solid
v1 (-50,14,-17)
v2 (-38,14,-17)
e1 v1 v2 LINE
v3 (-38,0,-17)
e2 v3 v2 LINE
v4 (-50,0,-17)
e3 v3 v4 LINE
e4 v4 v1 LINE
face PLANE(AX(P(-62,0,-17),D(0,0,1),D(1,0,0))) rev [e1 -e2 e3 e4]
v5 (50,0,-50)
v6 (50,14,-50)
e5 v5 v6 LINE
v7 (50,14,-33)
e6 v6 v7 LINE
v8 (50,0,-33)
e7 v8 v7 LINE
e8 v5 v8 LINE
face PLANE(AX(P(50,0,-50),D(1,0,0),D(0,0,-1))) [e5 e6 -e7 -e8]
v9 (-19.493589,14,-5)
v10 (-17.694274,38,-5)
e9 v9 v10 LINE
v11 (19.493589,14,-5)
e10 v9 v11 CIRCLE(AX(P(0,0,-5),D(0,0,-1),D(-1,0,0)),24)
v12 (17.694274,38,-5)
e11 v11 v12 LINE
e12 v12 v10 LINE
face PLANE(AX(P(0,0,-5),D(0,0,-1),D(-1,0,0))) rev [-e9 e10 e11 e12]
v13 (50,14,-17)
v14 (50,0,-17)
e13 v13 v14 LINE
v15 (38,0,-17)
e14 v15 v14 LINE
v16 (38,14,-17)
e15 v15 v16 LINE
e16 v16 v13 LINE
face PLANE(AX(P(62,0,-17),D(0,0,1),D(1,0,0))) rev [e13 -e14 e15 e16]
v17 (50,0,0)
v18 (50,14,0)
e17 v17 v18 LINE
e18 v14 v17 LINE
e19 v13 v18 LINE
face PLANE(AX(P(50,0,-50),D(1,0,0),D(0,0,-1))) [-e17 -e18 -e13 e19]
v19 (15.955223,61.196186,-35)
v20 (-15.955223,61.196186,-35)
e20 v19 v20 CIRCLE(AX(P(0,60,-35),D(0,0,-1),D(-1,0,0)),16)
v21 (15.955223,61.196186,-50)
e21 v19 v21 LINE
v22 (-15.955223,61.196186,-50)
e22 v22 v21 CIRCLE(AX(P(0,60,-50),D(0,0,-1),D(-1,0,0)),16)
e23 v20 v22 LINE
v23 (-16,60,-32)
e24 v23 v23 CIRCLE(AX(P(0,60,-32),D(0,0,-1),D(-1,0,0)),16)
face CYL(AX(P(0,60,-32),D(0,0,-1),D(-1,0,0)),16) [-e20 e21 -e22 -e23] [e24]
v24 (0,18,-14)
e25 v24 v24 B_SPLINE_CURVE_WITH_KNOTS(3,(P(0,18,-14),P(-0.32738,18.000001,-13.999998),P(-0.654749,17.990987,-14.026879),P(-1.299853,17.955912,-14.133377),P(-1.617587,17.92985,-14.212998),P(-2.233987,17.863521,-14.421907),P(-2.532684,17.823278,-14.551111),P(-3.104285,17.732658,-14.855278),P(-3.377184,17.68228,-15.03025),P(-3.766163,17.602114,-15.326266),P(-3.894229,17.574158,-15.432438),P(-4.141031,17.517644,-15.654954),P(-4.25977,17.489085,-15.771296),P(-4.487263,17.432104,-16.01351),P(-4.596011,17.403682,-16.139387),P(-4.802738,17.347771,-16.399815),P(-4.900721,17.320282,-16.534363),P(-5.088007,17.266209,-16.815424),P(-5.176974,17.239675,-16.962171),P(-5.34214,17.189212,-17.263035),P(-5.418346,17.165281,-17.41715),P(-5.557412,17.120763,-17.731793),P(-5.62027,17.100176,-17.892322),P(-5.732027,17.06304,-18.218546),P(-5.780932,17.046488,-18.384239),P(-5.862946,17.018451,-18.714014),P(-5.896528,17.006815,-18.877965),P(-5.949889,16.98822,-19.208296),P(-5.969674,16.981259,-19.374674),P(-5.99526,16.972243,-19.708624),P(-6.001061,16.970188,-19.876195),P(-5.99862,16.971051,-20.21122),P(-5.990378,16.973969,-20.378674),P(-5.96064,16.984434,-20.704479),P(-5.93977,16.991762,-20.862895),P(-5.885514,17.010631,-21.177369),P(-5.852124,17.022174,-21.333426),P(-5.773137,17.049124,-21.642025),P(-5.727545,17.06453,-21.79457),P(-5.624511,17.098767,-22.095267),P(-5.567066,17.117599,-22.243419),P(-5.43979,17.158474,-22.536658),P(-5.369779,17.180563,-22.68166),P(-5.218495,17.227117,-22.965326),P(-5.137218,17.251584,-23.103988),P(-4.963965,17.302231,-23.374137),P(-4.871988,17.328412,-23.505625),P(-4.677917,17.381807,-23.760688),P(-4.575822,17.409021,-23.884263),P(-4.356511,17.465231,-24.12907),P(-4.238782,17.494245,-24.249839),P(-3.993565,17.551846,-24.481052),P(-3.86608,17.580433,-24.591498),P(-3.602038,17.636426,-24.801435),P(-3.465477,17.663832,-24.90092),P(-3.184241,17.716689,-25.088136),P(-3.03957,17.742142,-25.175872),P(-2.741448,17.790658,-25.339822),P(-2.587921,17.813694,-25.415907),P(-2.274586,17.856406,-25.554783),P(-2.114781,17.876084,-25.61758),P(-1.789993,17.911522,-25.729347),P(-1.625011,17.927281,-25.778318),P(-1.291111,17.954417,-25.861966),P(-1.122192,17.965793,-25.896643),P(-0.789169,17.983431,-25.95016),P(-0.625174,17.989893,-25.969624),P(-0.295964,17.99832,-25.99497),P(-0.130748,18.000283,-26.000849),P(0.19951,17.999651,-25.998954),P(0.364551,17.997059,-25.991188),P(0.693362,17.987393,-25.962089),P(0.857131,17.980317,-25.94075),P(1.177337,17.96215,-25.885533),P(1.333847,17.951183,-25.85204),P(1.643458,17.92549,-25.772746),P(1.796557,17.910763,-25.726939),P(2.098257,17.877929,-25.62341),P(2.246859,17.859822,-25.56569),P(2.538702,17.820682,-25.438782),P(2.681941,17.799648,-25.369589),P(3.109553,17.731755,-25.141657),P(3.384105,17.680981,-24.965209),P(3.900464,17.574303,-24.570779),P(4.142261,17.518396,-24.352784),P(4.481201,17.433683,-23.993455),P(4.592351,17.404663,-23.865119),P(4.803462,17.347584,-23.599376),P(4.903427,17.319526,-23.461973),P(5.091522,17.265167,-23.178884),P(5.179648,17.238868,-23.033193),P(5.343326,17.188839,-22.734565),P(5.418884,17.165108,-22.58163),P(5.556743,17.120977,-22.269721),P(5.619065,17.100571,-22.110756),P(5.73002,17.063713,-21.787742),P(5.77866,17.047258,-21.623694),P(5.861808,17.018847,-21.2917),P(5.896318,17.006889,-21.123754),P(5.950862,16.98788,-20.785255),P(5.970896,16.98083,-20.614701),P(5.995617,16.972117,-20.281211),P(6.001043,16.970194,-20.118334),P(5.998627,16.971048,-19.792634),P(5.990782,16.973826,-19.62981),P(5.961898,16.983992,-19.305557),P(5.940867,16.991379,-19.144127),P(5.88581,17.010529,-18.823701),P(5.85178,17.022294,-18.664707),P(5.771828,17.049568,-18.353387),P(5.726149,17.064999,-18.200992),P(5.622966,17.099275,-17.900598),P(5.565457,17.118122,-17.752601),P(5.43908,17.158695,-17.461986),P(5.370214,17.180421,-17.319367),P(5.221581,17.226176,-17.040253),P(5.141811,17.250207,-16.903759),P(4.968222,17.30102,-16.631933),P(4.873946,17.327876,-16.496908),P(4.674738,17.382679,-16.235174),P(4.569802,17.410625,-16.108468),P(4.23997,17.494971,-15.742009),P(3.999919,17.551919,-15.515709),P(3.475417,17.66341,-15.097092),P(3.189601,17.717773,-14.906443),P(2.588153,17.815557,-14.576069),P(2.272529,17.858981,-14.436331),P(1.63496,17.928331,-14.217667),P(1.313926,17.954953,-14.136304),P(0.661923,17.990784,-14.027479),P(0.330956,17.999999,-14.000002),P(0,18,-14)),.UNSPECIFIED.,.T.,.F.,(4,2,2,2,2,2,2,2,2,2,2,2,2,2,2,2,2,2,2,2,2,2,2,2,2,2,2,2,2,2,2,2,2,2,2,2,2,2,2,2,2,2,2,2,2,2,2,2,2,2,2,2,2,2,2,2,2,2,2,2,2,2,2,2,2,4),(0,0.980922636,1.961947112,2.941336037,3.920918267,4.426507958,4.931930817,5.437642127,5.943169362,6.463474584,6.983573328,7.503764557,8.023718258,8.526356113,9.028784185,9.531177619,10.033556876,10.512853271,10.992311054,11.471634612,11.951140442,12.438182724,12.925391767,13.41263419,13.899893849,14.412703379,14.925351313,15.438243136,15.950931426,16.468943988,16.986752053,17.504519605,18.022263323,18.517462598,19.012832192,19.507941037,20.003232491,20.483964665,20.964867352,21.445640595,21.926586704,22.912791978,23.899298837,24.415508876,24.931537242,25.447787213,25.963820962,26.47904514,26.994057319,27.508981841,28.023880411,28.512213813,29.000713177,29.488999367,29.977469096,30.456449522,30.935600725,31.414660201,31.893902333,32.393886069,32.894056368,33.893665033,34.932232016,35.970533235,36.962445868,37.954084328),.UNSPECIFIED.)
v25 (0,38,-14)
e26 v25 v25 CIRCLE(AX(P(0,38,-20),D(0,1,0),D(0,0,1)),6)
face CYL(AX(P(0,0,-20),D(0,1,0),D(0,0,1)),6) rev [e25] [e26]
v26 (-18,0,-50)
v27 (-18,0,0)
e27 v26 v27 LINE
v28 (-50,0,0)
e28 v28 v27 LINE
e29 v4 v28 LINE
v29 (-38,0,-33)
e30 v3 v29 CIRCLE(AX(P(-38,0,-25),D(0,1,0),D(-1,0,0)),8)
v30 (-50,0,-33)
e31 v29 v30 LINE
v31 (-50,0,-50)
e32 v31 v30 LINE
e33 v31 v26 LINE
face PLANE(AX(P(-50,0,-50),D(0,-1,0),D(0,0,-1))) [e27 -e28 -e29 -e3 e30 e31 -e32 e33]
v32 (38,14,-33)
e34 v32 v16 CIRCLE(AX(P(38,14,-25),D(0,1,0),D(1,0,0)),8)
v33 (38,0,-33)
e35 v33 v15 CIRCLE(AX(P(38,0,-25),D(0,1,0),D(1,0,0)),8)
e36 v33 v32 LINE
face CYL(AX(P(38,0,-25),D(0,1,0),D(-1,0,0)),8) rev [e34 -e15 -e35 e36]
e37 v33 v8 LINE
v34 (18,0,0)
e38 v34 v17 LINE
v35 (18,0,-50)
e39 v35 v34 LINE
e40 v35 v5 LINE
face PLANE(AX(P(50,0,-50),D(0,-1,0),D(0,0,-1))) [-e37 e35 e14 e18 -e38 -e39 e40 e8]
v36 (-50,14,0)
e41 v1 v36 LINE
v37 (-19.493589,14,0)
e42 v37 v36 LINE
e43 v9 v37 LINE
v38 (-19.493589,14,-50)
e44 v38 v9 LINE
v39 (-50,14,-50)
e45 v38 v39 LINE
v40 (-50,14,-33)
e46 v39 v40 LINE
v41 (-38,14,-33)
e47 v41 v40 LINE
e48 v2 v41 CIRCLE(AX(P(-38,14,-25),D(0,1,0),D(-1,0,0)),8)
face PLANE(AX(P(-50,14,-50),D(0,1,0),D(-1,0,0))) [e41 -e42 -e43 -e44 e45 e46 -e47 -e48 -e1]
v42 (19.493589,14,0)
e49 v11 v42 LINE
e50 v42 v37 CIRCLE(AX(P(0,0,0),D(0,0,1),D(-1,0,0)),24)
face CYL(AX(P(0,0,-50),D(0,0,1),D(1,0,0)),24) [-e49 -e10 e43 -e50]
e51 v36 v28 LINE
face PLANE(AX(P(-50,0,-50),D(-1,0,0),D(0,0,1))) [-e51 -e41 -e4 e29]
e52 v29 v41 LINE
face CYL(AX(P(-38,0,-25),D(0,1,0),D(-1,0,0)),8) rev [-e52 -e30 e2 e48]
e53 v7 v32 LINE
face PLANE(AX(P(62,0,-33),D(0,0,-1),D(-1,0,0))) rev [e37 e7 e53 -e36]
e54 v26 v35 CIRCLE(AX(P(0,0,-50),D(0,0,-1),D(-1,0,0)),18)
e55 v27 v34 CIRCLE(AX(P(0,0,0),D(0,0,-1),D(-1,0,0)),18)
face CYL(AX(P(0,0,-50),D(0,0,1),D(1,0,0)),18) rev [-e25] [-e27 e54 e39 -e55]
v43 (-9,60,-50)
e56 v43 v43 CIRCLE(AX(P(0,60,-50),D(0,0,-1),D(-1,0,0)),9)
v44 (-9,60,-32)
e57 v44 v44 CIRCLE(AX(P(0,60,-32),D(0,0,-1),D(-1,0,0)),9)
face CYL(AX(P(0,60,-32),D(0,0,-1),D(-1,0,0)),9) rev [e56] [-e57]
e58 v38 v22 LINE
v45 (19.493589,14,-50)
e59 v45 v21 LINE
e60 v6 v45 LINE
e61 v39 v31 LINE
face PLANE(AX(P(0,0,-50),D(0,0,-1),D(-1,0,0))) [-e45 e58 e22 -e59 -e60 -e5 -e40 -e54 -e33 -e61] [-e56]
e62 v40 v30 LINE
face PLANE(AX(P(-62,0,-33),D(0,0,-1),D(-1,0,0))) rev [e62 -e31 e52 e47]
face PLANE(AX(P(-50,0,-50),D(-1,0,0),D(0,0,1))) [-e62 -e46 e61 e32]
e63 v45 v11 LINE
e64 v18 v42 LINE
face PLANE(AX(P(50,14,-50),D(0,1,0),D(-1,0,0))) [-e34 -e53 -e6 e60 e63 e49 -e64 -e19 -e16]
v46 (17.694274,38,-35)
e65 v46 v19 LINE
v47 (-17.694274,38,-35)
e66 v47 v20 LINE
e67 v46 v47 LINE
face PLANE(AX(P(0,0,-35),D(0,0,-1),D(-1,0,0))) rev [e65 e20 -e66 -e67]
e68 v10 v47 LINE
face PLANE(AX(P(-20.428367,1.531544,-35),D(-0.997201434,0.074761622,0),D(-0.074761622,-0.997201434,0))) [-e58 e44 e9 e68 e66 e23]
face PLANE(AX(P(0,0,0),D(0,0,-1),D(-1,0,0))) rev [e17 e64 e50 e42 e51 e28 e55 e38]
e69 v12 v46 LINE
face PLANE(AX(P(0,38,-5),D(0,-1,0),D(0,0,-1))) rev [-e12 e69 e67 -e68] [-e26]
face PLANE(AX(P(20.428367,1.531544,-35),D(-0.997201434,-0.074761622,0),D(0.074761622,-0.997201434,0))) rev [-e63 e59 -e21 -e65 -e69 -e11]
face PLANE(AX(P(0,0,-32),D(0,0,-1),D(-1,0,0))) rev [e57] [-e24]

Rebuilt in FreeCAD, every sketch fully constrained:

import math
import FreeCAD as App
import Part
import Sketcher
from FreeCAD import Vector
Q = App.Units.Quantity

doc = App.newDocument("Part")
body = doc.addObject("PartDesign::Body", "Body")

# Sketch on XY plane
sketch1 = body.newObject("Sketcher::SketchObject", "Sketch")
sketch1.AttachmentSupport = (doc.getObject("XY_Plane"), [""])
sketch1.MapMode = "FlatFace"
sketch1.addGeometry(Part.LineSegment(Vector(-50, 0, 0), Vector(-18, 0, 0)), False)
sketch1.addGeometry(Part.ArcOfCircle(Part.Circle(Vector(0, 0, 0), Vector(0, 0, 1), 18), math.radians(0), math.radians(180)), False)
sketch1.addGeometry(Part.LineSegment(Vector(18, 0, 0), Vector(50, 0, 0)), False)
sketch1.addGeometry(Part.LineSegment(Vector(50, 0, 0), Vector(50, 14, 0)), False)
sketch1.addGeometry(Part.LineSegment(Vector(50, 14, 0), Vector(19, 14, 0)), False)
sketch1.addGeometry(Part.ArcOfCircle(Part.Circle(Vector(0, 0, 0), Vector(0, 0, 1), 24), math.radians(36), math.radians(144)), False)
sketch1.addGeometry(Part.LineSegment(Vector(-19, 14, 0), Vector(-50, 14, 0)), False)
sketch1.addGeometry(Part.LineSegment(Vector(-50, 14, 0), Vector(-50, 0, 0)), False)
sketch1.addConstraint(Sketcher.Constraint("Coincident", 0, 2, 1, 2))
sketch1.addConstraint(Sketcher.Constraint("Coincident", 1, 1, 2, 1))
sketch1.addConstraint(Sketcher.Constraint("Coincident", 2, 2, 3, 1))
sketch1.addConstraint(Sketcher.Constraint("Coincident", 3, 2, 4, 1))
sketch1.addConstraint(Sketcher.Constraint("Coincident", 4, 2, 5, 1))
sketch1.addConstraint(Sketcher.Constraint("Coincident", 5, 2, 6, 1))
sketch1.addConstraint(Sketcher.Constraint("Coincident", 6, 2, 7, 1))
sketch1.addConstraint(Sketcher.Constraint("Coincident", 7, 2, 0, 1))
sketch1.addConstraint(Sketcher.Constraint("Horizontal", 0))
sketch1.addConstraint(Sketcher.Constraint("Horizontal", 2))
sketch1.addConstraint(Sketcher.Constraint("Vertical", 3))
sketch1.addConstraint(Sketcher.Constraint("Horizontal", 4))
sketch1.addConstraint(Sketcher.Constraint("Horizontal", 6))
sketch1.addConstraint(Sketcher.Constraint("Vertical", 7))
sketch1.addConstraint(Sketcher.Constraint("Coincident", 1, 3, -1, 1))
sketch1.addConstraint(Sketcher.Constraint("Coincident", 5, 3, -1, 1))
sketch1.addConstraint(Sketcher.Constraint("Symmetric", 2, 2, 7, 2, -1, 1))
sketch1.addConstraint(Sketcher.Constraint("PointOnObject", 0, 2, -1))
sketch1.addConstraint(Sketcher.Constraint("Horizontal", 4, 2, 5, 2))
sketch1.addConstraint(Sketcher.Constraint("Radius", 1, Q("18 mm")))
sketch1.addConstraint(Sketcher.Constraint("Radius", 5, Q("24 mm")))
sketch1.addConstraint(Sketcher.Constraint("DistanceX", 0, 1, 0, 2, Q("32 mm")))
sketch1.addConstraint(Sketcher.Constraint("DistanceY", 3, 1, 3, 2, Q("14 mm")))
pad1 = body.newObject("PartDesign::Pad", "Pad")
pad1.Profile = sketch1
pad1.Length = 50
pad1.Reversed = True

# Sketch on XZ plane
sketch2 = body.newObject("Sketcher::SketchObject", "Sketch001")
sketch2.AttachmentSupport = (doc.getObject("XZ_Plane"), [""])
sketch2.MapMode = "FlatFace"
sketch2.AttachmentOffset = App.Placement(Vector(0, 0, -14), App.Rotation())
sketch2.addGeometry(Part.LineSegment(Vector(-38, -33, 0), Vector(-62, -33, 0)), False)
sketch2.addGeometry(Part.ArcOfCircle(Part.Circle(Vector(-62, -25, 0), Vector(0, 0, 1), 8), math.radians(90), math.radians(270)), False)
sketch2.addGeometry(Part.LineSegment(Vector(-62, -17, 0), Vector(-38, -17, 0)), False)
sketch2.addGeometry(Part.ArcOfCircle(Part.Circle(Vector(-38, -25, 0), Vector(0, 0, 1), 8), math.radians(-90), math.radians(90)), False)
sketch2.addGeometry(Part.LineSegment(Vector(62, -33, 0), Vector(38, -33, 0)), False)
sketch2.addGeometry(Part.ArcOfCircle(Part.Circle(Vector(38, -25, 0), Vector(0, 0, 1), 8), math.radians(90), math.radians(270)), False)
sketch2.addGeometry(Part.LineSegment(Vector(38, -17, 0), Vector(62, -17, 0)), False)
sketch2.addGeometry(Part.ArcOfCircle(Part.Circle(Vector(62, -25, 0), Vector(0, 0, 1), 8), math.radians(-90), math.radians(90)), False)
sketch2.addConstraint(Sketcher.Constraint("Tangent", 0, 2, 1, 2))
sketch2.addConstraint(Sketcher.Constraint("Tangent", 1, 1, 2, 1))
sketch2.addConstraint(Sketcher.Constraint("Tangent", 2, 2, 3, 2))
sketch2.addConstraint(Sketcher.Constraint("Tangent", 3, 1, 0, 1))
sketch2.addConstraint(Sketcher.Constraint("Tangent", 4, 2, 5, 2))
sketch2.addConstraint(Sketcher.Constraint("Tangent", 5, 1, 6, 1))
sketch2.addConstraint(Sketcher.Constraint("Tangent", 6, 2, 7, 2))
sketch2.addConstraint(Sketcher.Constraint("Tangent", 7, 1, 4, 1))
sketch2.addConstraint(Sketcher.Constraint("Horizontal", 0))
sketch2.addConstraint(Sketcher.Constraint("Horizontal", 2))
sketch2.addConstraint(Sketcher.Constraint("Horizontal", 4))
sketch2.addConstraint(Sketcher.Constraint("Horizontal", 6))
sketch2.addConstraint(Sketcher.Constraint("Equal", 3, 5))
sketch2.addConstraint(Sketcher.Constraint("Symmetric", 3, 3, 5, 3, -2))
sketch2.addConstraint(Sketcher.Constraint("Equal", 2, 4))
sketch2.addConstraint(Sketcher.Constraint("Radius", 1, Q("8 mm")))
sketch2.addConstraint(Sketcher.Constraint("DistanceX", 0, 2, 0, 1, Q("24 mm")))
sketch2.addConstraint(Sketcher.Constraint("DistanceX", 1, 3, -1, 1, Q("62 mm")))
sketch2.addConstraint(Sketcher.Constraint("DistanceY", 1, 3, -1, 1, Q("25 mm")))
pocket1 = body.newObject("PartDesign::Pocket", "Pocket")
pocket1.Profile = sketch2
pocket1.Type = "ThroughAll"
pocket1.Reversed = True

# Sketch on XY plane
sketch3 = body.newObject("Sketcher::SketchObject", "Sketch002")
sketch3.AttachmentSupport = (doc.getObject("XY_Plane"), [""])
sketch3.MapMode = "FlatFace"
sketch3.AttachmentOffset = App.Placement(Vector(0, 0, -35), App.Rotation())
sketch3.addGeometry(Part.ArcOfCircle(Part.Circle(Vector(0, 0, 0), Vector(0, 0, 1), 24), math.radians(36), math.radians(144)), False)
sketch3.addGeometry(Part.LineSegment(Vector(-19, 14, 0), Vector(-18, 38, 0)), False)
sketch3.addGeometry(Part.LineSegment(Vector(-18, 38, 0), Vector(18, 38, 0)), False)
sketch3.addGeometry(Part.LineSegment(Vector(18, 38, 0), Vector(19, 14, 0)), False)
sketch3.addConstraint(Sketcher.Constraint("Coincident", 0, 2, 1, 1))
sketch3.addConstraint(Sketcher.Constraint("Coincident", 1, 2, 2, 1))
sketch3.addConstraint(Sketcher.Constraint("Coincident", 2, 2, 3, 1))
sketch3.addConstraint(Sketcher.Constraint("Coincident", 3, 2, 0, 1))
sketch3.addConstraint(Sketcher.Constraint("Horizontal", 2))
sketch3.addConstraint(Sketcher.Constraint("Coincident", 0, 3, -1, 1))
sketch3.addConstraint(Sketcher.Constraint("Horizontal", 0, 2, 3, 2))
sketch3.addConstraint(Sketcher.Constraint("Equal", 1, 3))
sketch3.addConstraint(Sketcher.Constraint("Radius", 0, Q("24 mm")))
sketch3.addConstraint(Sketcher.Constraint("DistanceY", -1, 1, 0, 2, Q("14 mm")))
sketch3.addConstraint(Sketcher.Constraint("DistanceY", -1, 1, 1, 2, Q("38 mm")))
sketch3.addConstraint(Sketcher.Constraint("DistanceX", 2, 1, 2, 2, Q("35.388549 mm")))
pad2 = body.newObject("PartDesign::Pad", "Pad001")
pad2.Profile = sketch3
pad2.Length = 15
pad2.Reversed = True
body2 = doc.addObject("PartDesign::Body", "Body001")

# Sketch on XY plane
sketch4 = body2.newObject("Sketcher::SketchObject", "Sketch003")
sketch4.AttachmentSupport = (doc.getObject("XY_Plane001"), [""])
sketch4.MapMode = "FlatFace"
sketch4.AttachmentOffset = App.Placement(Vector(0, 0, -50), App.Rotation())
sketch4.addGeometry(Part.Circle(Vector(0, 60, 0), Vector(0, 0, 1), 16), False)
sketch4.addGeometry(Part.Circle(Vector(0, 60, 0), Vector(0, 0, 1), 9), False)
sketch4.addConstraint(Sketcher.Constraint("Coincident", 1, 3, 0, 3))
sketch4.addConstraint(Sketcher.Constraint("PointOnObject", 0, 3, -2))
sketch4.addConstraint(Sketcher.Constraint("Diameter", 0, Q("32 mm")))
sketch4.addConstraint(Sketcher.Constraint("Diameter", 1, Q("18 mm")))
sketch4.addConstraint(Sketcher.Constraint("DistanceY", -1, 1, 0, 3, Q("60 mm")))
pad3 = body2.newObject("PartDesign::Pad", "Pad002")
pad3.Profile = sketch4
pad3.Length = 18
body.AllowCompound = True
doc.recompute()

boolean = body.newObject("PartDesign::Boolean", "Boolean")
boolean.Type = "Fuse"
boolean.addObjects([body2])

# Sketch on XY plane
sketch5 = body.newObject("Sketcher::SketchObject", "Sketch004")
sketch5.AttachmentSupport = (doc.getObject("XY_Plane"), [""])
sketch5.MapMode = "FlatFace"
sketch5.AttachmentOffset = App.Placement(Vector(0, 0, -50), App.Rotation())
sketch5.addGeometry(Part.LineSegment(Vector(-17.7, 38, 0), Vector(-16, 61.2, 0)), False)
sketch5.addGeometry(Part.ArcOfCircle(Part.Circle(Vector(0, 60, 0), Vector(0, 0, 1), 16), math.radians(175.71), math.radians(180)), False)
sketch5.addGeometry(Part.ArcOfCircle(Part.Circle(Vector(0, 60, 0), Vector(0, 0, 1), 16), math.radians(180), math.radians(270)), False)
sketch5.addGeometry(Part.ArcOfCircle(Part.Circle(Vector(0, 60, 0), Vector(0, 0, 1), 16), math.radians(-90), math.radians(4)), False)
sketch5.addGeometry(Part.LineSegment(Vector(16, 61.2, 0), Vector(17.7, 38, 0)), False)
sketch5.addGeometry(Part.LineSegment(Vector(17.7, 38, 0), Vector(-17.7, 38, 0)), False)
sketch5.addConstraint(Sketcher.Constraint("Tangent", 0, 2, 1, 1))
sketch5.addConstraint(Sketcher.Constraint("Tangent", 1, 2, 2, 1))
sketch5.addConstraint(Sketcher.Constraint("Tangent", 2, 2, 3, 1))
sketch5.addConstraint(Sketcher.Constraint("Tangent", 3, 2, 4, 1))
sketch5.addConstraint(Sketcher.Constraint("Coincident", 4, 2, 5, 1))
sketch5.addConstraint(Sketcher.Constraint("Coincident", 5, 2, 0, 1))
sketch5.addConstraint(Sketcher.Constraint("Horizontal", 5))
sketch5.addConstraint(Sketcher.Constraint("Coincident", 3, 3, 1, 3))
sketch5.addConstraint(Sketcher.Constraint("Symmetric", 0, 2, 3, 2, -2))
sketch5.addConstraint(Sketcher.Constraint("PointOnObject", 2, 2, -2))
sketch5.addConstraint(Sketcher.Constraint("Horizontal", 3, 3, 1, 2))
sketch5.addConstraint(Sketcher.Constraint("Radius", 1, Q("16.000001 mm")))
sketch5.addConstraint(Sketcher.Constraint("DistanceY", -1, 1, 1, 3, Q("60 mm")))
sketch5.addConstraint(Sketcher.Constraint("DistanceY", -1, 1, 4, 2, Q("38 mm")))
sketch5.addConstraint(Sketcher.Constraint("DistanceX", 5, 2, 5, 1, Q("35.388549 mm")))
pad4 = body.newObject("PartDesign::Pad", "Pad003")
pad4.Profile = sketch5
pad4.Length = 15

# Sketch on XY plane
sketch6 = body.newObject("Sketcher::SketchObject", "Sketch005")
sketch6.AttachmentSupport = (doc.getObject("XY_Plane"), [""])
sketch6.MapMode = "FlatFace"
sketch6.AttachmentOffset = App.Placement(Vector(0, 0, -5), App.Rotation())
sketch6.addGeometry(Part.ArcOfCircle(Part.Circle(Vector(0, 0, 0), Vector(0, 0, 1), 24), math.radians(90), math.radians(144)), False)
sketch6.addGeometry(Part.LineSegment(Vector(-19, 14, 0), Vector(-18, 38, 0)), False)
sketch6.addGeometry(Part.LineSegment(Vector(-18, 38, 0), Vector(18, 38, 0)), False)
sketch6.addGeometry(Part.LineSegment(Vector(18, 38, 0), Vector(19, 14, 0)), False)
sketch6.addGeometry(Part.ArcOfCircle(Part.Circle(Vector(0, 0, 0), Vector(0, 0, 1), 24), math.radians(36), math.radians(90)), False)
sketch6.addConstraint(Sketcher.Constraint("Coincident", 0, 2, 1, 1))
sketch6.addConstraint(Sketcher.Constraint("Coincident", 1, 2, 2, 1))
sketch6.addConstraint(Sketcher.Constraint("Coincident", 2, 2, 3, 1))
sketch6.addConstraint(Sketcher.Constraint("Coincident", 3, 2, 4, 1))
sketch6.addConstraint(Sketcher.Constraint("Tangent", 4, 2, 0, 1))
sketch6.addConstraint(Sketcher.Constraint("Horizontal", 2))
sketch6.addConstraint(Sketcher.Constraint("Coincident", 0, 3, -1, 1))
sketch6.addConstraint(Sketcher.Constraint("Equal", 0, 4))
sketch6.addConstraint(Sketcher.Constraint("PointOnObject", 4, 2, -2))
sketch6.addConstraint(Sketcher.Constraint("Horizontal", 0, 2, 3, 2))
sketch6.addConstraint(Sketcher.Constraint("Equal", 1, 3))
sketch6.addConstraint(Sketcher.Constraint("Radius", 0, Q("24 mm")))
sketch6.addConstraint(Sketcher.Constraint("DistanceY", -1, 1, 0, 2, Q("14 mm")))
sketch6.addConstraint(Sketcher.Constraint("DistanceY", -1, 1, 1, 2, Q("38 mm")))
sketch6.addConstraint(Sketcher.Constraint("DistanceX", 2, 1, 2, 2, Q("35.388549 mm")))
pad5 = body.newObject("PartDesign::Pad", "Pad004")
pad5.Profile = sketch6
pad5.Length = 45
pad5.Reversed = True

# Sketch on XZ plane
sketch7 = body.newObject("Sketcher::SketchObject", "Sketch006")
sketch7.AttachmentSupport = (doc.getObject("XZ_Plane"), [""])
sketch7.MapMode = "FlatFace"
sketch7.AttachmentOffset = App.Placement(Vector(0, 0, -38), App.Rotation())
sketch7.addGeometry(Part.ArcOfCircle(Part.Circle(Vector(0, -20, 0), Vector(0, 0, 1), 6), math.radians(-40), math.radians(0)), False)
sketch7.addGeometry(Part.ArcOfCircle(Part.Circle(Vector(0, -20, 0), Vector(0, 0, 1), 6), math.radians(0), math.radians(320)), False)
sketch7.addConstraint(Sketcher.Constraint("Tangent", 0, 1, 1, 2))
sketch7.addConstraint(Sketcher.Constraint("Coincident", 1, 1, 0, 2))
sketch7.addConstraint(Sketcher.Constraint("PointOnObject", 0, 3, -2))
sketch7.addConstraint(Sketcher.Constraint("Horizontal", 0, 3, 1, 1))
sketch7.addConstraint(Sketcher.Constraint("Radius", 0, Q("6 mm")))
sketch7.addConstraint(Sketcher.Constraint("DistanceY", 0, 3, -1, 1, Q("20 mm")))
sketch7.addConstraint(Sketcher.Constraint("DistanceY", 0, 1, -1, 1, Q("23.879861 mm")))
pocket2 = body.newObject("PartDesign::Pocket", "Pocket001")
pocket2.Profile = sketch7
pocket2.Type = "ThroughAll"
pocket2.Reversed = True

doc.recompute()
